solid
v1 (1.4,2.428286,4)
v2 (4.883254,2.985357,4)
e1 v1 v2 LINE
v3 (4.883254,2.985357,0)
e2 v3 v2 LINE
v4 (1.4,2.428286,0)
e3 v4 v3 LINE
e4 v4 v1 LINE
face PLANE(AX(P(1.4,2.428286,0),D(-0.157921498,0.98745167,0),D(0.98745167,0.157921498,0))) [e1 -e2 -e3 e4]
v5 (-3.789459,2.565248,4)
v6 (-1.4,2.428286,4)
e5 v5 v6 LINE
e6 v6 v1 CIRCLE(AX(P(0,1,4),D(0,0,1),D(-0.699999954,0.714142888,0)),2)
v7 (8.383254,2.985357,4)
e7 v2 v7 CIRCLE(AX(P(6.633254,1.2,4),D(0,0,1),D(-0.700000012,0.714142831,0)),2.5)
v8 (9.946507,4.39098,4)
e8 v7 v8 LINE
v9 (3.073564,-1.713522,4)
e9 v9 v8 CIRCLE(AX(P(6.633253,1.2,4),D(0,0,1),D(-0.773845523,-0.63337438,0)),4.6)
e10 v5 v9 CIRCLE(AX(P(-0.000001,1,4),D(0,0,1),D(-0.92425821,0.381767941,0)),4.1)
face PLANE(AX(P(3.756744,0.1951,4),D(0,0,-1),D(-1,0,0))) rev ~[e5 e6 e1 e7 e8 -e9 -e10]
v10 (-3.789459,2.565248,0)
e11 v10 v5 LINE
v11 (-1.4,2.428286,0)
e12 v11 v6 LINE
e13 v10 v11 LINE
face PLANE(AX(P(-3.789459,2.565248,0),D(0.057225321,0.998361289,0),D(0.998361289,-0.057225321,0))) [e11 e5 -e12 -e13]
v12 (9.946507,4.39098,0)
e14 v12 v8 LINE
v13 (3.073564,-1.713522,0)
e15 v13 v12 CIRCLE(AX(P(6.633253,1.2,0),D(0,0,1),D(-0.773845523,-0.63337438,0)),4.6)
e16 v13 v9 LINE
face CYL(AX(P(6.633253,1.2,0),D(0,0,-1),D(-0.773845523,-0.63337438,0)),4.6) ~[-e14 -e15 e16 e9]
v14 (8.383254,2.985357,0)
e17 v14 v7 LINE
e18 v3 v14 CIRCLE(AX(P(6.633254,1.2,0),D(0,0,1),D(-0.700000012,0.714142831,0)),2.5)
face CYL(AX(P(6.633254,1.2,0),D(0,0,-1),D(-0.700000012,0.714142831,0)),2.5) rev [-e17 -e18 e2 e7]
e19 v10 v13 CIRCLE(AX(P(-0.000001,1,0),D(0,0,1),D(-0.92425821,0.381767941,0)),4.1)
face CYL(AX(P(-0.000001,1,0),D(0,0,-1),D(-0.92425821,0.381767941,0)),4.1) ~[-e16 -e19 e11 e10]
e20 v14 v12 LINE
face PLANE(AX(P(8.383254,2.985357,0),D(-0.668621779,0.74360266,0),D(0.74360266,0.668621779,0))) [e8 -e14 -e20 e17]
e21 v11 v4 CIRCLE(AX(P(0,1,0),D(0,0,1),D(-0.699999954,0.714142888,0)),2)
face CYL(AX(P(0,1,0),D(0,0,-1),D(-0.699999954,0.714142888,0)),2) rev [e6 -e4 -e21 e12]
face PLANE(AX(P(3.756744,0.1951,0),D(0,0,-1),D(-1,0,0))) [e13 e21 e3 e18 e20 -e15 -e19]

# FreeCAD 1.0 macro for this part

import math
import FreeCAD as App
import Part
import Sketcher

V = App.Vector
Q = App.Units.Quantity

doc = App.newDocument("Part")
params = doc.addObject("Spreadsheet::Sheet", "Params")
for row, (alias, value) in enumerate([
    ("sketch1_radius", "2 mm"),
    ("sketch1_radius2", "4.1 mm"),
    ("sketch1_radius3", "4.6 mm"),
    ("sketch1_radius4", "2.5 mm"),
    ("pad1_length", "4 mm"),
], start=1):
    params.set(f"A{row}", alias)
    params.set(f"B{row}", "=" + value)
    params.setAlias(f"B{row}", alias)

body = doc.addObject("PartDesign::Body", "Body")

sketch1 = body.newObject("Sketcher::SketchObject", "Sketch")
sketch1.AttachmentSupport = (doc.getObject("XY_Plane"), [""])
sketch1.MapMode = "FlatFace"
sketch1.addGeometry(Part.ArcOfCircle(Part.Circle(V(0, 1, 0), V(0, 0, 1), 2), math.radians(134.427), math.radians(405.573)), False)
sketch1.addGeometry(Part.LineSegment(V(-1.4, 2.428286, 0), V(-3.789459, 2.565248, 0)), False)
sketch1.addGeometry(Part.ArcOfCircle(Part.Circle(V(-0.000001, 1, 0), V(0, 0, 1), 4.1), math.radians(157.556764), math.radians(318.560063)), False)
sketch1.addGeometry(Part.ArcOfCircle(Part.Circle(V(6.633253, 1.2, 0), V(0, 0, 1), 4.6), math.radians(-140.700481), math.radians(43.923018)), False)
sketch1.addGeometry(Part.LineSegment(V(9.946507, 4.39098, 0), V(8.383254, 2.985357, 0)), False)
sketch1.addGeometry(Part.ArcOfCircle(Part.Circle(V(6.633254, 1.2, 0), V(0, 0, 1), 2.5), math.radians(134.427005), math.radians(405.572995)), False)
sketch1.addGeometry(Part.LineSegment(V(4.883254, 2.985357, 0), V(1.4, 2.428286, 0)), False)
sketch1.addConstraint(Sketcher.Constraint("Coincident", 0, 1, 1, 1))
sketch1.addConstraint(Sketcher.Constraint("Coincident", 1, 2, 2, 1))
sketch1.addConstraint(Sketcher.Constraint("Coincident", 2, 2, 3, 1))
sketch1.addConstraint(Sketcher.Constraint("Coincident", 3, 2, 4, 1))
sketch1.addConstraint(Sketcher.Constraint("Coincident", 4, 2, 5, 2))
sketch1.addConstraint(Sketcher.Constraint("Coincident", 5, 1, 6, 1))
sketch1.addConstraint(Sketcher.Constraint("Coincident", 6, 2, 0, 2))
sketch1.addConstraint(Sketcher.Constraint("Coincident", 2, 3, 0, 3))
sketch1.addConstraint(Sketcher.Constraint("Coincident", 5, 3, 3, 3))
sketch1.addConstraint(Sketcher.Constraint("Symmetric", 0, 1, 6, 2, -2))
sketch1.addConstraint(Sketcher.Constraint("Horizontal", 4, 2, 5, 1))
sketch1.addConstraint(Sketcher.Constraint("Radius", 0, Q("2 mm")))
sketch1.addConstraint(Sketcher.Constraint("Radius", 2, Q("4.1 mm")))
sketch1.addConstraint(Sketcher.Constraint("Radius", 3, Q("4.6 mm")))
sketch1.addConstraint(Sketcher.Constraint("Radius", 5, Q("2.5 mm")))
sketch1.addConstraint(Sketcher.Constraint("DistanceY", -1, 1, 0, 3, Q("1 mm")))
sketch1.addConstraint(Sketcher.Constraint("DistanceY", -1, 1, 3, 3, Q("1.2 mm")))
sketch1.addConstraint(Sketcher.Constraint("DistanceX", 0, 1, -1, 1, Q("1.4 mm")))
sketch1.addConstraint(Sketcher.Constraint("DistanceX", 5, 1, 4, 2, Q("3.5 mm")))
sketch1.addConstraint(Sketcher.Constraint("DistanceY", 2, 2, 3, 2, Q("6.104502 mm")))
sketch1.addConstraint(Sketcher.Constraint("Distance", 1, Q("2.393381 mm")))
sketch1.addConstraint(Sketcher.Constraint("Distance", 4, Q("2.102269 mm")))
sketch1.setExpression("Constraints[11]", "Params.sketch1_radius")
sketch1.setExpression("Constraints[12]", "Params.sketch1_radius2")
sketch1.setExpression("Constraints[13]", "Params.sketch1_radius3")
sketch1.setExpression("Constraints[14]", "Params.sketch1_radius4")
pad1 = body.newObject("PartDesign::Pad", "Pad")
pad1.Profile = sketch1
pad1.setExpression("Length", "Params.pad1_length")

doc.recompute()
